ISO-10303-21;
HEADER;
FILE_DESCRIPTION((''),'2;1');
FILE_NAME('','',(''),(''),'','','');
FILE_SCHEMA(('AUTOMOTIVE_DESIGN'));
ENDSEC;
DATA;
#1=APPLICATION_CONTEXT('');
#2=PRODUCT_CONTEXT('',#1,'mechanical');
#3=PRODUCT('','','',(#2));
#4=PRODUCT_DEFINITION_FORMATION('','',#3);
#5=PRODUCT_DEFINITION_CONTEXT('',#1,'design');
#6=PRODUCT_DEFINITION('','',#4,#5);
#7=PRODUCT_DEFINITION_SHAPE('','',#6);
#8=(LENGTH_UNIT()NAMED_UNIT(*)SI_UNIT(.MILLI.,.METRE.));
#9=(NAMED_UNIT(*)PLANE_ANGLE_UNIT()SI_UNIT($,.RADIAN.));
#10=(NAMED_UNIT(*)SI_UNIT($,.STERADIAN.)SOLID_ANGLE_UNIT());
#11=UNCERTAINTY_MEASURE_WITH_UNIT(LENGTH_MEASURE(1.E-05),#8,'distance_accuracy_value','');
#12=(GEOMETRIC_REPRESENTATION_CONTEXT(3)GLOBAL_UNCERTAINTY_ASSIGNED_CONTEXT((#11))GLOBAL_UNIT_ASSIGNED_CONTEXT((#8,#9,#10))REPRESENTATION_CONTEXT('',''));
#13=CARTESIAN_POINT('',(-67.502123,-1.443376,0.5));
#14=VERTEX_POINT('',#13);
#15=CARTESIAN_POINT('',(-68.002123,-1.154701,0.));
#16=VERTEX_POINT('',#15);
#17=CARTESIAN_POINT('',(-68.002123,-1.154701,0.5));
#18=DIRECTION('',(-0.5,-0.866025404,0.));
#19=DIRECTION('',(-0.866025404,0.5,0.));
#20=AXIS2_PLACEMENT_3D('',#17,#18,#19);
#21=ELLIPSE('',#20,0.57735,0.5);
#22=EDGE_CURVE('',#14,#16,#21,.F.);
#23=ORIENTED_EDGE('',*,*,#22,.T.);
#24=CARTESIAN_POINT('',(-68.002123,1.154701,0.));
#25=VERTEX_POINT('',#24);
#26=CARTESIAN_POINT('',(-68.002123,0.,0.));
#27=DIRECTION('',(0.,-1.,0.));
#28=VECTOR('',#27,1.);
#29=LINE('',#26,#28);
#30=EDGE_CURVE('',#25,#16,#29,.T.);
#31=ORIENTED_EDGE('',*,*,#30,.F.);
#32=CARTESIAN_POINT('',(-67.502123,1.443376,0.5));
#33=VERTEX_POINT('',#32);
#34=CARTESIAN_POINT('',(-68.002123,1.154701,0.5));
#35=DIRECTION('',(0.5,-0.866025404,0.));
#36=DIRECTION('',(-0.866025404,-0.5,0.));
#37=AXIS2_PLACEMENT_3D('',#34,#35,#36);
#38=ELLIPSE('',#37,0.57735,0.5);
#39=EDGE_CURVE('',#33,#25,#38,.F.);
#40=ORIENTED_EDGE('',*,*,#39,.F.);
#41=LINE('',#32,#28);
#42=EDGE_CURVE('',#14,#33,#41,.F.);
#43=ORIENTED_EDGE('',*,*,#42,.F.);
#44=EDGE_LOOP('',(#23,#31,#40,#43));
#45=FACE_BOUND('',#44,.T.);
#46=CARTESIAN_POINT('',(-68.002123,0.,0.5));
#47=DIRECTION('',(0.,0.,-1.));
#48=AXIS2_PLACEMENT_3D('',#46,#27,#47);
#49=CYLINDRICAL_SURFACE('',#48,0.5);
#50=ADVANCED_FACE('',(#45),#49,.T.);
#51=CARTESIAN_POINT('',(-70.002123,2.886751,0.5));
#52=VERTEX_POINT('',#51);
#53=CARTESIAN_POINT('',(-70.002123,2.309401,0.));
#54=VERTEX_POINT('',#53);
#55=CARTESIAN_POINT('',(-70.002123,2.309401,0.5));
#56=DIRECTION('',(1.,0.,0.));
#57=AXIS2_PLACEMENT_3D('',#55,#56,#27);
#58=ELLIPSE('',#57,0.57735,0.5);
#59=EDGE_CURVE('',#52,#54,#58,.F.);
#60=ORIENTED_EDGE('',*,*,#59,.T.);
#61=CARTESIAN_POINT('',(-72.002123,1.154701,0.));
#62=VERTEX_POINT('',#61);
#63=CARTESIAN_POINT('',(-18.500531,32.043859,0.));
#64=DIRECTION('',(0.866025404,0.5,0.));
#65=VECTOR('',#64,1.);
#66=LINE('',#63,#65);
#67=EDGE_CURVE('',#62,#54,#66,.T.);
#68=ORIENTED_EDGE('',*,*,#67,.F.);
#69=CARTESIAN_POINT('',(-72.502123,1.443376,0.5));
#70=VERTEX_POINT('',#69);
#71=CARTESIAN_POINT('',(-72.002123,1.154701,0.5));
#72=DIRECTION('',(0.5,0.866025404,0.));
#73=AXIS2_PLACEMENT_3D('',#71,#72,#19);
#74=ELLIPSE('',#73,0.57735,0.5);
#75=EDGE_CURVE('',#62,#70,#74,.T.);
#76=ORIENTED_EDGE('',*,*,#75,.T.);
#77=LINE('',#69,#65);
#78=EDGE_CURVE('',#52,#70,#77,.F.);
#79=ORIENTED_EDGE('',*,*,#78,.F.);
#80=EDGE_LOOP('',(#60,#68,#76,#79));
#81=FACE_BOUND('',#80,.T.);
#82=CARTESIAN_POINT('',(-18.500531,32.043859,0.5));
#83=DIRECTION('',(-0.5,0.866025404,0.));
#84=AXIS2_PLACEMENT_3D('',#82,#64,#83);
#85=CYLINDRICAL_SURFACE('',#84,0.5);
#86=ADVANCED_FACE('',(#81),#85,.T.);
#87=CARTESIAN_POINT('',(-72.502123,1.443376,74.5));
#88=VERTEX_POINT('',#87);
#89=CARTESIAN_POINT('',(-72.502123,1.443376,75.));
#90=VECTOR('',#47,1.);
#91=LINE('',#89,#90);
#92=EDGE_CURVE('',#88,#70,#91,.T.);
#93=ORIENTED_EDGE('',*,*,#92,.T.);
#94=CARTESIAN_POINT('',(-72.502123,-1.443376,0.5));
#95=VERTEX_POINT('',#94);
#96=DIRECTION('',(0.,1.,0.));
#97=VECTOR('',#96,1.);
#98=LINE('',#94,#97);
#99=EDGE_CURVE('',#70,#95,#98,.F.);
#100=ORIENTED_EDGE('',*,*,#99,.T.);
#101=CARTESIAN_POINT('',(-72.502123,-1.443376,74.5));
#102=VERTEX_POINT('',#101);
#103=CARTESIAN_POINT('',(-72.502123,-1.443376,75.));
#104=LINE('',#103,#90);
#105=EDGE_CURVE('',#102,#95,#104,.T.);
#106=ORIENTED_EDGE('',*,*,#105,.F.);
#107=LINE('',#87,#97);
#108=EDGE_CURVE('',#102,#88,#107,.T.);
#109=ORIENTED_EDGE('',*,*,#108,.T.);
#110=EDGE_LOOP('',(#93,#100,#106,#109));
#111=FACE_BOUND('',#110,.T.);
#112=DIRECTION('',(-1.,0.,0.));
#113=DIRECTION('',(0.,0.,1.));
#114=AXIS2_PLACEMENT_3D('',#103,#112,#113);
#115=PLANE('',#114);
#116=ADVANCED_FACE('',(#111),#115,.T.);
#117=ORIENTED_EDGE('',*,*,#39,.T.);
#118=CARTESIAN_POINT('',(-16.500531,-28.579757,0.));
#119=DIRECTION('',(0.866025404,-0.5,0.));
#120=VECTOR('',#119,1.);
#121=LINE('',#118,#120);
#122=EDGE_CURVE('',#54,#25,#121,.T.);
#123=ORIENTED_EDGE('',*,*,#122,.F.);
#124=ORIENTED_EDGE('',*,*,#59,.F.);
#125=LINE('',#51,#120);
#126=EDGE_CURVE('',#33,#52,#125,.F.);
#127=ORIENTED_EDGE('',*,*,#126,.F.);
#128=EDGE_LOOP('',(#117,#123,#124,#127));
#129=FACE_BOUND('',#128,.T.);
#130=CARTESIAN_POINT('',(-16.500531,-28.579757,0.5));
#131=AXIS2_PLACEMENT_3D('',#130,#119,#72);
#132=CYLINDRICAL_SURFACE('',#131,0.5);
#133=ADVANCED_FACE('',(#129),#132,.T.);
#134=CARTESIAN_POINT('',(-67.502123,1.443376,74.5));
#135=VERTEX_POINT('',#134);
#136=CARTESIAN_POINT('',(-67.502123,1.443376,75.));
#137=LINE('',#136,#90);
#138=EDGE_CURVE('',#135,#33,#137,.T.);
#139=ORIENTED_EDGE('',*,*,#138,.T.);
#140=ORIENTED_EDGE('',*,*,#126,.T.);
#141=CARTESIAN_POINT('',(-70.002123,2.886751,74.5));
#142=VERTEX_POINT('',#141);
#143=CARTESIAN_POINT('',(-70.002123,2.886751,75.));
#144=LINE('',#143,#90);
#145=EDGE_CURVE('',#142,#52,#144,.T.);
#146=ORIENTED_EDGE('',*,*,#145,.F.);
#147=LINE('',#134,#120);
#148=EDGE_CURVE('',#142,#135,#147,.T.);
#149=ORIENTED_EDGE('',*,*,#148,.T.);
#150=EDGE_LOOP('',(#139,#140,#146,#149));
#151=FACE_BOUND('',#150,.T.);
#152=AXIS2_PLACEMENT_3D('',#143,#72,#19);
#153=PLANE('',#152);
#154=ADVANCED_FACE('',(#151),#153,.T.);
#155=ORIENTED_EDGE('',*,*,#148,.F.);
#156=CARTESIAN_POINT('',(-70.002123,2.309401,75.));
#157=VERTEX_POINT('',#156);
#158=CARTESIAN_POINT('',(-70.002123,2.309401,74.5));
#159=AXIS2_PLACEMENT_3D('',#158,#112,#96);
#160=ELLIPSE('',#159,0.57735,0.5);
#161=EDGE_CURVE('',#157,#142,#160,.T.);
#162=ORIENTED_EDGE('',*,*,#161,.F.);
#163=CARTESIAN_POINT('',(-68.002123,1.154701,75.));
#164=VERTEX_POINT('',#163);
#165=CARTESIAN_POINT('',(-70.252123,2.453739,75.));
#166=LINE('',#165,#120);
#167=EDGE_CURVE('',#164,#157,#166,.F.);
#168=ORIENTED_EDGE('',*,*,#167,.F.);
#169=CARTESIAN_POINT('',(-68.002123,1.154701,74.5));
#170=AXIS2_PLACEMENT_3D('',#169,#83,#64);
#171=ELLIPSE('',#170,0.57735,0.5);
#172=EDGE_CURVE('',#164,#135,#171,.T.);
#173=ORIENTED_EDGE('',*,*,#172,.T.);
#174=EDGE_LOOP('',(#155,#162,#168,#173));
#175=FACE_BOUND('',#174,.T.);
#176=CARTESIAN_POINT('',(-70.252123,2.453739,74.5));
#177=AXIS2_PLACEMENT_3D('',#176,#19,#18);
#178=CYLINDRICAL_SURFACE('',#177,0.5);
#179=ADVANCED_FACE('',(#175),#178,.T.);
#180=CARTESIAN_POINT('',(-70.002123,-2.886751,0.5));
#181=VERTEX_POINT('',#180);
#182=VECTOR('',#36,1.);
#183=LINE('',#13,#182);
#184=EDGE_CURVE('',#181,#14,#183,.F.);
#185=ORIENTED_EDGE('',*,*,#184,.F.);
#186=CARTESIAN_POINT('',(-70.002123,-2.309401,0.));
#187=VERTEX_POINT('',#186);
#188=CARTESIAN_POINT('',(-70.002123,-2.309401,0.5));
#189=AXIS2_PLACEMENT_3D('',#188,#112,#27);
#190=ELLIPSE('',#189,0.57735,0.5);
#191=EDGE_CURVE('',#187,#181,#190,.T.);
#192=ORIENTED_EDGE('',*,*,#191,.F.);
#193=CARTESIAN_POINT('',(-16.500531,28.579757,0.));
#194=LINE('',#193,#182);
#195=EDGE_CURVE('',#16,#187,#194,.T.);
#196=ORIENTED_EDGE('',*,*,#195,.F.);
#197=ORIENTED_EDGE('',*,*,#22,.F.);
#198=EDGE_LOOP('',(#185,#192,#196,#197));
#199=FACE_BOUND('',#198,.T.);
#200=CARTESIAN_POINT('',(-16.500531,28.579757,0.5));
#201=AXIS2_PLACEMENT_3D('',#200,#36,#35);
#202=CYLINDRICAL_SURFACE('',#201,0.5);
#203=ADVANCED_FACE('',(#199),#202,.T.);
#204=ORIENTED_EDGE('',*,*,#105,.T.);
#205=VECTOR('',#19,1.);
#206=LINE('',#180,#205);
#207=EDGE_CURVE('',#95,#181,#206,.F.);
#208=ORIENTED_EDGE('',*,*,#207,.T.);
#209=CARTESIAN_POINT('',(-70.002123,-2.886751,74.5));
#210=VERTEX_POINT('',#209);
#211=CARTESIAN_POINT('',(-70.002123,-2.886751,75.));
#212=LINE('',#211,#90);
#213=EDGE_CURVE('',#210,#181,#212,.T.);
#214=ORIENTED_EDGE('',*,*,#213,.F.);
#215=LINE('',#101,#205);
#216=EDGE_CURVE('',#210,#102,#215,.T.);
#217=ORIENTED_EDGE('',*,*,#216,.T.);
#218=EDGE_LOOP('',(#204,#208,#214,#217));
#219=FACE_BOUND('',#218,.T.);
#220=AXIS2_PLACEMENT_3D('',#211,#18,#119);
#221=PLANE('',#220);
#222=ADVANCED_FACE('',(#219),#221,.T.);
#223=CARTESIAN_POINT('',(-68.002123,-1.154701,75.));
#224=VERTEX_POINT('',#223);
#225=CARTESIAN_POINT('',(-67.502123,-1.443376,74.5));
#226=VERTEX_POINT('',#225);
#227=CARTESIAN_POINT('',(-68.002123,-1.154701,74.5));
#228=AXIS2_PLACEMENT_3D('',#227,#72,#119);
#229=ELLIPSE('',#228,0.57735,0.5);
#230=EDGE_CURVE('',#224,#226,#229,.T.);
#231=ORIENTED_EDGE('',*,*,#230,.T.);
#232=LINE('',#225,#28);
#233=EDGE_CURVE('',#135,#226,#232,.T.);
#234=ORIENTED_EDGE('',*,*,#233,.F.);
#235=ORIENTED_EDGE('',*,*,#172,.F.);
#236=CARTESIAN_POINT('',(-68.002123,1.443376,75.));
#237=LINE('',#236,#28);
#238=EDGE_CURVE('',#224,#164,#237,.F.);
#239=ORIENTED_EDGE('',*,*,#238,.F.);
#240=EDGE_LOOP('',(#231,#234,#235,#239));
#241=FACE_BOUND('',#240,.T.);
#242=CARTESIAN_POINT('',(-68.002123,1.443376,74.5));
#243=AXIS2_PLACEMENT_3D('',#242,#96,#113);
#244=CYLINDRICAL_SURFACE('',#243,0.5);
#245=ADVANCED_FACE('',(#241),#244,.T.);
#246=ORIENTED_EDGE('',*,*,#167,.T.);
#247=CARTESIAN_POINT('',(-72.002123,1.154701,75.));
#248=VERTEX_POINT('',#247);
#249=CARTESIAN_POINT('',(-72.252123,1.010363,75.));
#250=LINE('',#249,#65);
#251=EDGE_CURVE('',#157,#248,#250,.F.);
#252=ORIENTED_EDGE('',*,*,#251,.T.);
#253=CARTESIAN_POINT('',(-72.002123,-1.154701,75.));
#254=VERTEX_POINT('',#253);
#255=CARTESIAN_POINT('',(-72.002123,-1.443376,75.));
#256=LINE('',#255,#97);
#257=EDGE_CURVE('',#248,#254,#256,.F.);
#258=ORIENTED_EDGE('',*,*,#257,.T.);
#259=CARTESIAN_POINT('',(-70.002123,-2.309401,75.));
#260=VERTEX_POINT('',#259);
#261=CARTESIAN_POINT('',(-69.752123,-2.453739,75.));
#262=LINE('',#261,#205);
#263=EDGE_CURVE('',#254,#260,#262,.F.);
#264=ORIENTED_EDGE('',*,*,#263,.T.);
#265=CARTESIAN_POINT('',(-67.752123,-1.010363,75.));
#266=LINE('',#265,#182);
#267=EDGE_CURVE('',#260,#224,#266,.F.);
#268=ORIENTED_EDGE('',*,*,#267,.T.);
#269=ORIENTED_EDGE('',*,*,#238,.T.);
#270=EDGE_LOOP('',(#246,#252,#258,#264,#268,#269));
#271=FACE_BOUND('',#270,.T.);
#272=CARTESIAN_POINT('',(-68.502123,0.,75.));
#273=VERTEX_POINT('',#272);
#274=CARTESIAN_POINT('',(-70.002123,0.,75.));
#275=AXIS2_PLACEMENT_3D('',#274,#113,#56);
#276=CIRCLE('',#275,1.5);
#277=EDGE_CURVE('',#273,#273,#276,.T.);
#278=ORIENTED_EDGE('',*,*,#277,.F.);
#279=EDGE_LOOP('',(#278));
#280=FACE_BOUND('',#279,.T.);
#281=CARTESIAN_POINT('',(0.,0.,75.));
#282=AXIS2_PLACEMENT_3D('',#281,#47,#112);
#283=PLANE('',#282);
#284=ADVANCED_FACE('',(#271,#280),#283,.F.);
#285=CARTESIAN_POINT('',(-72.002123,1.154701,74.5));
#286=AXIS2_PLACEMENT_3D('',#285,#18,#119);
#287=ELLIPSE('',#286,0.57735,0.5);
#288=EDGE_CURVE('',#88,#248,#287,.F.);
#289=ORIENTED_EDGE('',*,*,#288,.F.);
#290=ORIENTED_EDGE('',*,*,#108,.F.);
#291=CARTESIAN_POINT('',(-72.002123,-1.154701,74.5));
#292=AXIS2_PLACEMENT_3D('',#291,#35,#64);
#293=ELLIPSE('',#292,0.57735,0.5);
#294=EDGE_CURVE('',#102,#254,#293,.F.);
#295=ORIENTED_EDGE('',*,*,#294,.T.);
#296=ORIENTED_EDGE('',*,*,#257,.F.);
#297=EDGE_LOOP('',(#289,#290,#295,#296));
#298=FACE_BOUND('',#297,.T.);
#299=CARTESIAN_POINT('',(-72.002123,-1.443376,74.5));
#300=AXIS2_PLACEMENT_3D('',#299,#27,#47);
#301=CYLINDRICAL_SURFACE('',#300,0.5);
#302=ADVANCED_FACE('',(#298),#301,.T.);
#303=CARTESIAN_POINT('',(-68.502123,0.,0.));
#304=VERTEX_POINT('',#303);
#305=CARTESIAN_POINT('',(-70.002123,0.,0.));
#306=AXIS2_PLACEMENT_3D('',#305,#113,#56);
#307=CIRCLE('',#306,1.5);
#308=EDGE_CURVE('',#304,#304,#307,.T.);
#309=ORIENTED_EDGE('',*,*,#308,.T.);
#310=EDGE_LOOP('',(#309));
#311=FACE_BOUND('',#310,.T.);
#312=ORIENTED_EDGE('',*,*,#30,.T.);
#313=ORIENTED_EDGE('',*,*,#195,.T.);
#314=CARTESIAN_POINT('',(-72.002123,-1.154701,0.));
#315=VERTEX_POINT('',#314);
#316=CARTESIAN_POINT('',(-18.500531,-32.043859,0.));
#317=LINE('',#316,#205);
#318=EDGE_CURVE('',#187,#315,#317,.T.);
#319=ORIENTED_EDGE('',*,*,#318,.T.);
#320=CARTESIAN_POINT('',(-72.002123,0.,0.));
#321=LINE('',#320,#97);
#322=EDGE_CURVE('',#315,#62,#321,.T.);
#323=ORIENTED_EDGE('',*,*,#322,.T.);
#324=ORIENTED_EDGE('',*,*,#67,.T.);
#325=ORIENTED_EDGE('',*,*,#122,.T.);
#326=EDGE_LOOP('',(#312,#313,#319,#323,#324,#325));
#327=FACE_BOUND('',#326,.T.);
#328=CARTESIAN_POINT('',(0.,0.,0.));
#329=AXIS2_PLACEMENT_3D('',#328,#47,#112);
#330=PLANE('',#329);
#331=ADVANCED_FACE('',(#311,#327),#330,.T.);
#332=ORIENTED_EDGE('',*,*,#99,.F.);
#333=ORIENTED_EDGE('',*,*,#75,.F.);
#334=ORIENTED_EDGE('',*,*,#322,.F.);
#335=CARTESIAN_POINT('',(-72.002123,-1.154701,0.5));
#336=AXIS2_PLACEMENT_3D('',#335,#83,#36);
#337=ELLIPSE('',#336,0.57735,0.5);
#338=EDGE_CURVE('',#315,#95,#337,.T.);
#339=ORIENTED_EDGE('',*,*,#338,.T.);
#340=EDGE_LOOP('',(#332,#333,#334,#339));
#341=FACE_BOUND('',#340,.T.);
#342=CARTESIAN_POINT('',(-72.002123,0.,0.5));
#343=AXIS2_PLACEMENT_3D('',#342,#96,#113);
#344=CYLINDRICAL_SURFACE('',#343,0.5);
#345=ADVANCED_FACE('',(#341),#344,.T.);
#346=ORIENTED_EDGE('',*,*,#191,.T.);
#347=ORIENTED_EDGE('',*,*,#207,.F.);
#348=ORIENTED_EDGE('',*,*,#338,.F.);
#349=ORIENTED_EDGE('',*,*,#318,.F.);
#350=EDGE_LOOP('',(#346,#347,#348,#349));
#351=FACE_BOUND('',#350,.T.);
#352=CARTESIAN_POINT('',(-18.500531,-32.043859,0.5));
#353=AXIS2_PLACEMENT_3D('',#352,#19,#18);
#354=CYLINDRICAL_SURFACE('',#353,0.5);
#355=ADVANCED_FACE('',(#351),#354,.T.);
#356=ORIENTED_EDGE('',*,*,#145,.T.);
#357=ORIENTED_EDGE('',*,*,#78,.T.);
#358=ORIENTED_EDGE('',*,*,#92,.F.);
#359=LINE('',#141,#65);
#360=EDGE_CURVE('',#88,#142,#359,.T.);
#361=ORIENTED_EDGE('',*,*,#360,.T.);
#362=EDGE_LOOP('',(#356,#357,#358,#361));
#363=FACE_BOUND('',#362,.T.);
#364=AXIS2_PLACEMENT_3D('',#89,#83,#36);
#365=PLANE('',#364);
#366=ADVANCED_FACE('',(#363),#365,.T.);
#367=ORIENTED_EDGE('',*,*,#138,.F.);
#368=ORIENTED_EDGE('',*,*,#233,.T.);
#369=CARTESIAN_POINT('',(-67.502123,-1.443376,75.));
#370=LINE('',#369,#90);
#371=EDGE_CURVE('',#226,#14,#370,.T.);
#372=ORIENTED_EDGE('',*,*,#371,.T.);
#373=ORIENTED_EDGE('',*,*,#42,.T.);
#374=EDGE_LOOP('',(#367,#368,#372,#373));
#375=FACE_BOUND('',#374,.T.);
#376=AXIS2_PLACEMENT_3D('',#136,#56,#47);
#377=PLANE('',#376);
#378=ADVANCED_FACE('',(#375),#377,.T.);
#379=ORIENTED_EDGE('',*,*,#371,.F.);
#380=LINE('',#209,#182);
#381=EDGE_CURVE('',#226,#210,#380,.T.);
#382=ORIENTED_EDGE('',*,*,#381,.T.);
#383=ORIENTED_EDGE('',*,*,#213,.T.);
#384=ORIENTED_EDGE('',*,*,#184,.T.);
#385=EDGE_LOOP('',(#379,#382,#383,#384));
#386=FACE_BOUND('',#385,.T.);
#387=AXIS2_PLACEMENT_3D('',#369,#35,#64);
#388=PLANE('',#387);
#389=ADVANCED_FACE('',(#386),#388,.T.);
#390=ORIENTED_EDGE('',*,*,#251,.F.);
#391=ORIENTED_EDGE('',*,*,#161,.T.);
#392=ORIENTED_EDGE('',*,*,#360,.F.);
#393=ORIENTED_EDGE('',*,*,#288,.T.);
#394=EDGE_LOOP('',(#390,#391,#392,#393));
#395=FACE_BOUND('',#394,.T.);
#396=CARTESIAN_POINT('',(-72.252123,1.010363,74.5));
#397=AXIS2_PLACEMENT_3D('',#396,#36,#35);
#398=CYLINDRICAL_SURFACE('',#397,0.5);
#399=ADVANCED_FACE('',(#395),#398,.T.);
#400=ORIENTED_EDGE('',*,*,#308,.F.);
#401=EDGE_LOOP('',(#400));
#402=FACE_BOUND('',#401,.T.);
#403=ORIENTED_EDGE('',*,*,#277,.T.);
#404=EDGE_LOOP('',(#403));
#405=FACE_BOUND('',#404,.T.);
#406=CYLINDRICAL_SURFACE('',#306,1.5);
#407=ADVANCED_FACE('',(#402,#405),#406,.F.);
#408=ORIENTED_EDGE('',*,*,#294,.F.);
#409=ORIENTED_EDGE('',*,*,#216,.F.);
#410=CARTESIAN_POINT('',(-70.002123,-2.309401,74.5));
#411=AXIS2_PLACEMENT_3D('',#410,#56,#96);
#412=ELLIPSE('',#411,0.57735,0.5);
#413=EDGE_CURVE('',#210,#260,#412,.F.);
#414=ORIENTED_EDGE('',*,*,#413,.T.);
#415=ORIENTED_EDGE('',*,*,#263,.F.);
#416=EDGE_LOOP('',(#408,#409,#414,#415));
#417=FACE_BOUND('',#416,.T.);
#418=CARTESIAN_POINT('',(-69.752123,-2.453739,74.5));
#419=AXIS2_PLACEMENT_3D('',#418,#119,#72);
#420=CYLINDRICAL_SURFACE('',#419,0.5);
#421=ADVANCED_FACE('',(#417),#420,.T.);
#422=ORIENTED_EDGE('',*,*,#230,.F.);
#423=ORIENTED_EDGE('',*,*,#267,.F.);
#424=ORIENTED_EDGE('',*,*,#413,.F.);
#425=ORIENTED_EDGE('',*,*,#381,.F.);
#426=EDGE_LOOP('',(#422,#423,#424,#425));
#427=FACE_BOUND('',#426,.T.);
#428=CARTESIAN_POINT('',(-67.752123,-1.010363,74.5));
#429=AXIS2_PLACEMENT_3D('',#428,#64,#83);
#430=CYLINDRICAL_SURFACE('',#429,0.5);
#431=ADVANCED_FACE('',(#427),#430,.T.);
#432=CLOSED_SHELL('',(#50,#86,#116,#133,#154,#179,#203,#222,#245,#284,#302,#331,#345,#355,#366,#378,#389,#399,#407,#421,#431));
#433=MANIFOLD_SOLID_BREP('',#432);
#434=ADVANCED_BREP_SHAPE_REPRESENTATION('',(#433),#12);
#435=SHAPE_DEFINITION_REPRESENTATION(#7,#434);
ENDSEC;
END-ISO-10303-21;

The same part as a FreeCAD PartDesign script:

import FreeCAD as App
import Part
import Sketcher
from FreeCAD import Vector
Q = App.Units.Quantity


def edges_at(feature, points):
    """Names of the edges that pass closest to the given points."""
    edges = feature.Shape.Edges
    near = lambda p: min(range(len(edges)), key=lambda i: edges[i].distToShape(Part.Vertex(*p))[0])
    return sorted({f"Edge{near(p) + 1}" for p in points})


def add_polygon(sketch, points):
    """Adds a closed chain of lines whose ends are joined by coincident constraints."""
    first, n = sketch.GeometryCount, len(points)
    for a, b in zip(points, points[1:] + points[:1]):
        sketch.addGeometry(Part.LineSegment(App.Vector(*a, 0), App.Vector(*b, 0)), False)
    for i in range(n):
        sketch.addConstraint(Sketcher.Constraint("Coincident", first + i, 2, first + (i + 1) % n, 1))

doc = App.newDocument("Part")
params = doc.addObject("Spreadsheet::Sheet", "Params")
for row, (alias, value) in enumerate([
    ("pad1_length", "75 mm"),
    ("fillet_radius", "0.5 mm"),
    ("sketch2_diameter", "3 mm"),
], start=1):
    params.set(f"A{row}", alias)
    params.set(f"B{row}", "=" + value)
    params.setAlias(f"B{row}", alias)

body = doc.addObject("PartDesign::Body", "Body")

sketch1 = body.newObject("Sketcher::SketchObject", "Sketch")
sketch1.AttachmentSupport = (doc.getObject("XY_Plane"), [""])
sketch1.MapMode = "FlatFace"
add_polygon(sketch1, [(-67.502123, -1.443376), (-70.002123, -2.886751), (-72.502123, -1.443376), (-72.502123, 1.443376), (-70.002123, 2.886751), (-67.502123, 1.443376)])
sketch1.addConstraint([
    Sketcher.Constraint("Vertical", 2),
    Sketcher.Constraint("Vertical", 5),
    Sketcher.Constraint("Symmetric", 0, 2, 3, 2, -1),
    Sketcher.Constraint("Parallel", 0, 3),
    Sketcher.Constraint("Parallel", 1, 4),
    Sketcher.Constraint("Horizontal", 2, 2, 4, 2),
    Sketcher.Constraint("Horizontal", 1, 2, 5, 2),
    Sketcher.Constraint("Angle", 0, Q("-150 deg")),
    Sketcher.Constraint("DistanceX", 2, 2, 4, 2, Q("5 mm")),
    Sketcher.Constraint("DistanceY", 2, 1, 2, 2, Q("2.886751 mm")),
    Sketcher.Constraint("DistanceX", 0, 2, -1, 1, Q("70.002123 mm")),
])
pad1 = body.newObject("PartDesign::Pad", "Pad")
pad1.Profile = sketch1
pad1.setExpression("Length", "Params.pad1_length")
doc.recompute()

fillet = body.newObject("PartDesign::Fillet", "Fillet")
fillet.Base = (pad1, edges_at(pad1, [
    (-71.252, -2.165, 75),
    (-72.502, 0, 75),
    (-71.252, 2.165, 75),
    (-68.752, 2.165, 75),
    (-67.502, 0, 75),
    (-68.752, 2.165, 0),
    (-71.252, 2.165, 0),
    (-72.502, 0, 0),
    (-71.252, -2.165, 0),
    (-68.752, -2.165, 0),
    (-67.502, 0, 0),
    (-68.752, -2.165, 75),
]))
fillet.setExpression("Radius", "Params.fillet_radius")

sketch2 = body.newObject("Sketcher::SketchObject", "Sketch001")
sketch2.AttachmentSupport = (doc.getObject("XY_Plane"), [""])
sketch2.MapMode = "FlatFace"
sketch2.AttachmentOffset = App.Placement(Vector(0, 0, 75), App.Rotation())
sketch2.addGeometry(Part.Circle(Vector(-70.002123, 0, 0), Vector(0, 0, 1), 1.5), False)
sketch2.addConstraint([
    Sketcher.Constraint("PointOnObject", 0, 3, -1),
    Sketcher.Constraint("Diameter", 0, Q("3 mm")),
    Sketcher.Constraint("DistanceX", 0, 3, -1, 1, Q("70.002123 mm")),
])
sketch2.setExpression("Constraints[1]", "Params.sketch2_diameter")
pocket1 = body.newObject("PartDesign::Pocket", "Pocket")
pocket1.Profile = sketch2
pocket1.Type = "ThroughAll"

doc.recompute()
